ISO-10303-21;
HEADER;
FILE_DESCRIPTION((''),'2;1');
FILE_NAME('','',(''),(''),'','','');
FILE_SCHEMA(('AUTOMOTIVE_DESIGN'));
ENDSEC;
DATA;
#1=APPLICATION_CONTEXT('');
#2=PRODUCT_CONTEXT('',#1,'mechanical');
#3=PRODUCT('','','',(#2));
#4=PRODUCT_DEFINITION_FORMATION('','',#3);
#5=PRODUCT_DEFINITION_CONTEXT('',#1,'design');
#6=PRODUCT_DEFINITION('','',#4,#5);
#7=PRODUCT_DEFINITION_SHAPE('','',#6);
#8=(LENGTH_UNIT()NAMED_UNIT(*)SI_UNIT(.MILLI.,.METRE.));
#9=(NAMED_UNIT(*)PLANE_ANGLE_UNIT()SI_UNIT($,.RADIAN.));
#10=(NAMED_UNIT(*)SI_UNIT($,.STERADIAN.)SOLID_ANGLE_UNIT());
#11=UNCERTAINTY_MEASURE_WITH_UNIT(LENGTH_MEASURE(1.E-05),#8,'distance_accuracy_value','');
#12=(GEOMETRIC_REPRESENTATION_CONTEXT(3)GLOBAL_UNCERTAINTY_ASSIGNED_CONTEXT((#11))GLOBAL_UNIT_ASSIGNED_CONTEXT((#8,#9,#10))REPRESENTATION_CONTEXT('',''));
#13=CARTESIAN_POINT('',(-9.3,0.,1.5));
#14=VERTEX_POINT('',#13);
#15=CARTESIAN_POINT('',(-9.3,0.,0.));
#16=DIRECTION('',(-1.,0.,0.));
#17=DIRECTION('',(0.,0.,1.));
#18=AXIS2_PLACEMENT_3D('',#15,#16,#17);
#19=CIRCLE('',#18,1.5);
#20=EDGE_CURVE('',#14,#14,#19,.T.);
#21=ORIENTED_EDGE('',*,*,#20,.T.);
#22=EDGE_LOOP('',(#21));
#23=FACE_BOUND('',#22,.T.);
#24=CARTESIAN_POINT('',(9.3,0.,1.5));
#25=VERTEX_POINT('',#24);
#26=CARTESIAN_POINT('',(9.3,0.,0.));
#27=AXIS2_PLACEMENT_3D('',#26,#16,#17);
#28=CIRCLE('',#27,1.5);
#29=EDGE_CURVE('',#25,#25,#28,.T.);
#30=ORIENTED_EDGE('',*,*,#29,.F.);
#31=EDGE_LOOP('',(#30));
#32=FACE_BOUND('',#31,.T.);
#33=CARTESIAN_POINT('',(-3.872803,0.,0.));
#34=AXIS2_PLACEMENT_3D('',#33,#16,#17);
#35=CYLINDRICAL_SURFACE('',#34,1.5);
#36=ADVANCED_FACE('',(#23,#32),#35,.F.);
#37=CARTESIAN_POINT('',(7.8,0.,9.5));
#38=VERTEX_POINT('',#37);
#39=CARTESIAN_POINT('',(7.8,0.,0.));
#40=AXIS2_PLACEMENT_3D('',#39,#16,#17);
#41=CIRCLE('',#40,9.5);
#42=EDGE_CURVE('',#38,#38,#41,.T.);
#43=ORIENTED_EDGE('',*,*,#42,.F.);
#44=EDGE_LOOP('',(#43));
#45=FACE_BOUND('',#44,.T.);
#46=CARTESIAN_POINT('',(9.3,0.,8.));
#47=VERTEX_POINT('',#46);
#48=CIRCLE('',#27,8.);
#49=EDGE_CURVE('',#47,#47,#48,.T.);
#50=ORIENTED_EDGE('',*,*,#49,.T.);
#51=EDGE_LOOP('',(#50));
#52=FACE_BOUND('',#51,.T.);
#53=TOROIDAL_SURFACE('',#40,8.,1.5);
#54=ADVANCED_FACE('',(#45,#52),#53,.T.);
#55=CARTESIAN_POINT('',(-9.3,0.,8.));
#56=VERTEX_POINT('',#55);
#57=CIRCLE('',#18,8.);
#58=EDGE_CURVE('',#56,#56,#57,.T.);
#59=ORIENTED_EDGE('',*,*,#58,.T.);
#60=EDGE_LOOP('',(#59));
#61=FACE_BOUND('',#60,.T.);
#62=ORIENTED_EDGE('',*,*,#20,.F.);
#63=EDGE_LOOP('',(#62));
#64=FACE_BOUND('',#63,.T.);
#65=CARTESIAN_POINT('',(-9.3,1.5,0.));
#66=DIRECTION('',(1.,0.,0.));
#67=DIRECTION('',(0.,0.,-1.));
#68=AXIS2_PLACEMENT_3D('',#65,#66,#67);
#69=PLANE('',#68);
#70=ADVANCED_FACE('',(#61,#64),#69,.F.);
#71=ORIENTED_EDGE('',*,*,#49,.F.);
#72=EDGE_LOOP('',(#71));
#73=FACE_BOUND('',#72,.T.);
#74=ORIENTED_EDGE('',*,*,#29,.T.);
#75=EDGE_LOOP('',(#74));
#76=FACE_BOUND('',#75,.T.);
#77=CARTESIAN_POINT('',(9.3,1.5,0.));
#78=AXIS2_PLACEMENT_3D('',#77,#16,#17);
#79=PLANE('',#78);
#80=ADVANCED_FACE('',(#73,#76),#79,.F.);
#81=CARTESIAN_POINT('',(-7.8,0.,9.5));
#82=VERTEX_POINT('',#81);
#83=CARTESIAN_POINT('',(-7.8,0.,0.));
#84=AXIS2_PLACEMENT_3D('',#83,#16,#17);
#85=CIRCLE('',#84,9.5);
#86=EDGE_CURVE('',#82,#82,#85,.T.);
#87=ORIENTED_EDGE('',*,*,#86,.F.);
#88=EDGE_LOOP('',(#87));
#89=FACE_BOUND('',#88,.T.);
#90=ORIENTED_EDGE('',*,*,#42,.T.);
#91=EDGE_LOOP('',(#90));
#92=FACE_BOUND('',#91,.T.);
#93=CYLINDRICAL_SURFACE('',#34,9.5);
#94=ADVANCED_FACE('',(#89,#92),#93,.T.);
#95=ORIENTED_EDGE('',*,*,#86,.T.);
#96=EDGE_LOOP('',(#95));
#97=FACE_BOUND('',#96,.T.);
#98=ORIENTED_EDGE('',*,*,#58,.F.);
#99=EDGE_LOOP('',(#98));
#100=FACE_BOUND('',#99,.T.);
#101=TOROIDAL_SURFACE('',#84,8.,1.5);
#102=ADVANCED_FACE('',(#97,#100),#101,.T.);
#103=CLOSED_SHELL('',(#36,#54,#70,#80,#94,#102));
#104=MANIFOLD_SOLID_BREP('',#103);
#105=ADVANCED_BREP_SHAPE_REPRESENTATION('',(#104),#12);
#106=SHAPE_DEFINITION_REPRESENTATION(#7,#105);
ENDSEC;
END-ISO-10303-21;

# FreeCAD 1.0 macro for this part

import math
import FreeCAD as App
import Part
import Sketcher
from FreeCAD import Vector

doc = App.newDocument("Part")
params = doc.addObject("Spreadsheet::Sheet", "Params")
for row, (alias, value) in enumerate([
    ("sketch1_radius", "1.5 mm"),
    ("sketch1_width", "18.6 mm"),
    ("sketch1_height", "6.5 mm"),
    ("revolution_angle", "360 deg"),
], start=1):
    params.set(f"A{row}", alias)
    params.set(f"B{row}", "=" + value)
    params.setAlias(f"B{row}", alias)

body = doc.addObject("PartDesign::Body", "Body")

# Sketch on XY plane
sketch1 = body.newObject("Sketcher::SketchObject", "Sketch")
sketch1.AttachmentSupport = (doc.getObject("XY_Plane"), [""])
sketch1.MapMode = "FlatFace"
sketch1.addGeometry(Part.LineSegment(Vector(-9.3, 1.5, 0), Vector(9.3, 1.5, 0)), False)
sketch1.addGeometry(Part.LineSegment(Vector(9.3, 1.5, 0), Vector(9.3, 8, 0)), False)
sketch1.addGeometry(Part.ArcOfCircle(Part.Circle(Vector(7.8, 8, 0), Vector(0, 0, 1), 1.5), math.radians(0), math.radians(90)), False)
sketch1.addGeometry(Part.LineSegment(Vector(7.8, 9.5, 0), Vector(-7.8, 9.5, 0)), False)
sketch1.addGeometry(Part.ArcOfCircle(Part.Circle(Vector(-7.8, 8, 0), Vector(0, 0, 1), 1.5), math.radians(90), math.radians(180)), False)
sketch1.addGeometry(Part.LineSegment(Vector(-9.3, 8, 0), Vector(-9.3, 1.5, 0)), False)
sketch1.addConstraint(Sketcher.Constraint("Coincident", 0, 2, 1, 1))
sketch1.addConstraint(Sketcher.Constraint("Tangent", 1, 2, 2, 1))
sketch1.addConstraint(Sketcher.Constraint("Tangent", 2, 2, 3, 1))
sketch1.addConstraint(Sketcher.Constraint("Tangent", 3, 2, 4, 1))
sketch1.addConstraint(Sketcher.Constraint("Tangent", 4, 2, 5, 1))
sketch1.addConstraint(Sketcher.Constraint("Coincident", 5, 2, 0, 1))
sketch1.addConstraint(Sketcher.Constraint("Horizontal", 0))
sketch1.addConstraint(Sketcher.Constraint("Vertical", 1))
sketch1.addConstraint(Sketcher.Constraint("Horizontal", 3))
sketch1.addConstraint(Sketcher.Constraint("Vertical", 5))
sketch1.addConstraint(Sketcher.Constraint("Equal", 2, 4))
sketch1.addConstraint(Sketcher.Constraint("Radius", 2, 1.5))
sketch1.addConstraint(Sketcher.Constraint("DistanceX", 0, 1, 0, 2, 18.6))
sketch1.addConstraint(Sketcher.Constraint("DistanceY", 1, 1, 1, 2, 6.5))
sketch1.addConstraint(Sketcher.Constraint("DistanceY", -1, 1, 2, 3, 8.0))
sketch1.addConstraint(Sketcher.Constraint("DistanceX", -1, 1, 2, 3, 7.8))
sketch1.setExpression("Constraints[11]", "Params.sketch1_radius")
sketch1.setExpression("Constraints[12]", "Params.sketch1_width")
sketch1.setExpression("Constraints[13]", "Params.sketch1_height")
revolution = body.newObject("PartDesign::Revolution", "Revolution")
revolution.Profile = sketch1
revolution.ReferenceAxis = (sketch1, ["H_Axis"])
revolution.setExpression("Angle", "Params.revolution_angle")

doc.recompute()
